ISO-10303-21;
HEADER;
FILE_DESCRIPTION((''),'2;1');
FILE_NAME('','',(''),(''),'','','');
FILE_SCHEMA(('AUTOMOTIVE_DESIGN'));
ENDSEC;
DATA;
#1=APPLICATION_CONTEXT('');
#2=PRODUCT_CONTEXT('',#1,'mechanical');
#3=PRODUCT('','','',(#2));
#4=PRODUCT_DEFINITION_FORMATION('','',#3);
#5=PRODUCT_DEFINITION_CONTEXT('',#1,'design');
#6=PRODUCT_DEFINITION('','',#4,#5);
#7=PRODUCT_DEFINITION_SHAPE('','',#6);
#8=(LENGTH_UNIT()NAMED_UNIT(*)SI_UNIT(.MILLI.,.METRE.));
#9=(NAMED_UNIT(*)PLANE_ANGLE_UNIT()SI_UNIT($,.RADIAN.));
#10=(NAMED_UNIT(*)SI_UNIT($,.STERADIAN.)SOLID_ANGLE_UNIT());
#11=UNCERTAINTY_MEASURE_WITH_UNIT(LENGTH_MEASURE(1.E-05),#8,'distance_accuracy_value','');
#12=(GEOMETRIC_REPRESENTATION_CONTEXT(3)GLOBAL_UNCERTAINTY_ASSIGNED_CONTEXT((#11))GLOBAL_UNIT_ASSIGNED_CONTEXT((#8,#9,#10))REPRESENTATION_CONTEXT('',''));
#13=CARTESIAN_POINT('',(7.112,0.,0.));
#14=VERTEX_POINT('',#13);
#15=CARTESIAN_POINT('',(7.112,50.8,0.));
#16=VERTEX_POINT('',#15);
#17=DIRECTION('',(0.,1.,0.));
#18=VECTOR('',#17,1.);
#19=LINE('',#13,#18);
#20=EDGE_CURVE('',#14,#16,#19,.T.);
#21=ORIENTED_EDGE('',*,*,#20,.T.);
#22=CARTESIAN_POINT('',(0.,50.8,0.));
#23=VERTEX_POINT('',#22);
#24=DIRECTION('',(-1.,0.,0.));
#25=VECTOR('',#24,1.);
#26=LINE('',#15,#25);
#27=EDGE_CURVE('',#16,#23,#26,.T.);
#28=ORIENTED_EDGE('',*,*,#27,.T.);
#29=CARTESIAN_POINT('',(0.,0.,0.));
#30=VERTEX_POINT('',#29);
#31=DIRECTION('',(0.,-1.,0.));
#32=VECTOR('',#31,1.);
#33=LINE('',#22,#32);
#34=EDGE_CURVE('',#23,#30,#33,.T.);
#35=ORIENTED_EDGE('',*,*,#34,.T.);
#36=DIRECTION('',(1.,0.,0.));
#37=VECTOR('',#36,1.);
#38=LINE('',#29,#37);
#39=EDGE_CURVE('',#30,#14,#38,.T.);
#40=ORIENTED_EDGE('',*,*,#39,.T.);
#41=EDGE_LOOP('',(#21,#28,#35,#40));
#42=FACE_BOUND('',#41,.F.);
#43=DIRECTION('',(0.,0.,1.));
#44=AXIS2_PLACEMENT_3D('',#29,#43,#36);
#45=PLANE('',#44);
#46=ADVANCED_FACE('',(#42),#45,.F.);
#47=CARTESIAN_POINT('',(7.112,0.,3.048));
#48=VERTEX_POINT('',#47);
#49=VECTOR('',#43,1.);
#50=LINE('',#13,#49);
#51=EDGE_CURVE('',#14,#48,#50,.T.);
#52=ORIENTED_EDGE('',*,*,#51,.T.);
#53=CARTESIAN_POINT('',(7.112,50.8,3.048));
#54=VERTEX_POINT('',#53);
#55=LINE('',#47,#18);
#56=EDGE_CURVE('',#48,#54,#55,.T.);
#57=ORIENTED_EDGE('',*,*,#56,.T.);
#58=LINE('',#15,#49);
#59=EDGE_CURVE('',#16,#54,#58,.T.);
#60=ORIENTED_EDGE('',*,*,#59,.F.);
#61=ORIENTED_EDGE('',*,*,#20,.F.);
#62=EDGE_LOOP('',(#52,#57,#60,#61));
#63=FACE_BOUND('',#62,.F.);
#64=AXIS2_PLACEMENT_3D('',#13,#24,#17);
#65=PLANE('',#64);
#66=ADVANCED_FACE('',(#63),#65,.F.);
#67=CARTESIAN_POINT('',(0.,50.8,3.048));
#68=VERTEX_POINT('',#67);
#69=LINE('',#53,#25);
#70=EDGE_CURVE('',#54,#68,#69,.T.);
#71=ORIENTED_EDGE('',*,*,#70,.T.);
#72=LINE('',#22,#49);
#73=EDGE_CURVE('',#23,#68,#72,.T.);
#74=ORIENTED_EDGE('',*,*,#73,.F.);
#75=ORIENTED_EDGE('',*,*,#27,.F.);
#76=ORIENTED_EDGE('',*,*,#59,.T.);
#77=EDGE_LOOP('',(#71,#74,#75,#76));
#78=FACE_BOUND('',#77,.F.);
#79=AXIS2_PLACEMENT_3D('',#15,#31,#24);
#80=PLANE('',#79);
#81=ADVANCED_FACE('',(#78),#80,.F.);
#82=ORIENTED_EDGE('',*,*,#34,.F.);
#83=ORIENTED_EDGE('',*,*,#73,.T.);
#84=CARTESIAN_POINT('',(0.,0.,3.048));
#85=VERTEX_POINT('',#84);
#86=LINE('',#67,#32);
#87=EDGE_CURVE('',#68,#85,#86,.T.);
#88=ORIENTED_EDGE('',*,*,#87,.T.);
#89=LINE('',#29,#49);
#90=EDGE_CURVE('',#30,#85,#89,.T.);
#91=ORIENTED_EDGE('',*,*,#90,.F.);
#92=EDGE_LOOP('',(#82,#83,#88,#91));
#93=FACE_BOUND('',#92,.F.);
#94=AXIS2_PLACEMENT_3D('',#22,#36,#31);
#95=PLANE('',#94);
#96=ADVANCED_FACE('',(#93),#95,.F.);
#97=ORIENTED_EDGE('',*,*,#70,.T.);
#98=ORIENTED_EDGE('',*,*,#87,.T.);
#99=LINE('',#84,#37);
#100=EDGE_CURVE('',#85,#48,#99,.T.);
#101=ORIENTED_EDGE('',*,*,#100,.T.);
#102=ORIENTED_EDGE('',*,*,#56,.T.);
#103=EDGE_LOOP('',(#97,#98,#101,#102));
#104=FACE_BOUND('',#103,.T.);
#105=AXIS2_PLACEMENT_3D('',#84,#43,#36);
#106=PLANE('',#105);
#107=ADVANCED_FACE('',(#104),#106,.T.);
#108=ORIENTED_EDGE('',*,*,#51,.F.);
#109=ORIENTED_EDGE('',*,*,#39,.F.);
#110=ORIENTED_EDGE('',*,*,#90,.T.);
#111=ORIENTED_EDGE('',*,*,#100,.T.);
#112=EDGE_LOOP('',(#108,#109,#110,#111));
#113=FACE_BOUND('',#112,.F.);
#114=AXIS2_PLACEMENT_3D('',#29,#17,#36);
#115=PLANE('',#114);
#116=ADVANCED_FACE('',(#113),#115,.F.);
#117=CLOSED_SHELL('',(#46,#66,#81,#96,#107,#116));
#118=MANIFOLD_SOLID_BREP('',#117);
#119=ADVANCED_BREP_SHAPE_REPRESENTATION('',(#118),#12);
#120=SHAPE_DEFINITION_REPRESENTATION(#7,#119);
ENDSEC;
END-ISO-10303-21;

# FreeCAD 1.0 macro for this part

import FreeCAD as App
import Part
import Sketcher
from FreeCAD import Vector
Q = App.Units.Quantity


def add_polygon(sketch, points):
    """Adds a closed chain of lines whose ends are joined by coincident constraints."""
    first, n = sketch.GeometryCount, len(points)
    for a, b in zip(points, points[1:] + points[:1]):
        sketch.addGeometry(Part.LineSegment(App.Vector(*a, 0), App.Vector(*b, 0)), False)
    for i in range(n):
        sketch.addConstraint(Sketcher.Constraint("Coincident", first + i, 2, first + (i + 1) % n, 1))

doc = App.newDocument("Part")
body = doc.addObject("PartDesign::Body", "Body")

# Sketch on XY plane
sketch1 = body.newObject("Sketcher::SketchObject", "Sketch")
sketch1.AttachmentSupport = (doc.getObject("XY_Plane"), [""])
sketch1.MapMode = "FlatFace"
add_polygon(sketch1, [(0, 51), (0, 0), (7, 0), (7, 51)])  # lines 0-3
sketch1.addConstraint([
    Sketcher.Constraint("Vertical", 0),
    Sketcher.Constraint("Horizontal", 1),
    Sketcher.Constraint("Vertical", 2),
    Sketcher.Constraint("Horizontal", 3),
    Sketcher.Constraint("Coincident", 0, 2, -1, 1),
    Sketcher.Constraint("DistanceY", 0, 2, 0, 1, Q("2 in")),
    Sketcher.Constraint("DistanceX", 1, 1, 1, 2, Q("0.28 in")),
])
pad1 = body.newObject("PartDesign::Pad", "Pad")
pad1.Profile = sketch1
pad1.Length = Q("0.12 in")

doc.recompute()
